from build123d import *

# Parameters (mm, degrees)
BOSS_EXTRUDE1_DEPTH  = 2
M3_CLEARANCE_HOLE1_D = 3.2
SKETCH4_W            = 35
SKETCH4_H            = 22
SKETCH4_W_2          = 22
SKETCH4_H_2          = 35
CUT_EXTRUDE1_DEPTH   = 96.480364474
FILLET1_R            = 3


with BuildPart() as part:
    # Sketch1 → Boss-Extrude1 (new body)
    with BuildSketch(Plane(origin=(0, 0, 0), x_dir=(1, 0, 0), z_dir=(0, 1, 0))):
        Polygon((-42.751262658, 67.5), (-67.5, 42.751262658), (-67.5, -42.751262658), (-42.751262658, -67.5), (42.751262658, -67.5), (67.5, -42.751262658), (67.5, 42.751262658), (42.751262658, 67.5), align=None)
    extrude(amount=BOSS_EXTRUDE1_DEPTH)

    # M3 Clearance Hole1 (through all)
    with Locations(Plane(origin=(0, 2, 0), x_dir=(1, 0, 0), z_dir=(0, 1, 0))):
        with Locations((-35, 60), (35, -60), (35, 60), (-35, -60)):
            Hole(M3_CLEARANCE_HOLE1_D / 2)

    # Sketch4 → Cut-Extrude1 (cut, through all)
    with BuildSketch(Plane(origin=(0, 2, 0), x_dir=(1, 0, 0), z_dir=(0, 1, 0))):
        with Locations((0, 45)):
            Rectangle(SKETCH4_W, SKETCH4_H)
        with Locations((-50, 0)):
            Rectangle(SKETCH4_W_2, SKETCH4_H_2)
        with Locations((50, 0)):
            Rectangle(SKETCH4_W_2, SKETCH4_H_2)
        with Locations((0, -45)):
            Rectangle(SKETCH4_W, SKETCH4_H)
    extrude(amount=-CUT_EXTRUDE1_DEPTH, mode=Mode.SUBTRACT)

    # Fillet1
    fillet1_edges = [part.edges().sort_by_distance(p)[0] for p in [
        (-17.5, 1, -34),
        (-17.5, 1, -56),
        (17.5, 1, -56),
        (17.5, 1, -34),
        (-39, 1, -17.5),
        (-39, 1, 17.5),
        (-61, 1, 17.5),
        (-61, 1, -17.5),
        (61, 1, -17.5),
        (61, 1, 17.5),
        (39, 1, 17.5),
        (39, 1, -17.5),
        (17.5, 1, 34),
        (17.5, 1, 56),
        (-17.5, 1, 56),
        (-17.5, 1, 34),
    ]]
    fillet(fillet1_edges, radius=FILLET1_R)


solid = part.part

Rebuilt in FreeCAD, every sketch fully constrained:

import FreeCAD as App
import Part
import Sketcher
from FreeCAD import Vector
Q = App.Units.Quantity


def edges_at(feature, points):
    """Names of the edges that pass closest to the given points."""
    edges = feature.Shape.Edges
    near = lambda p: min(range(len(edges)), key=lambda i: edges[i].distToShape(Part.Vertex(*p))[0])
    return sorted({f"Edge{near(p) + 1}" for p in points})


def add_polygon(sketch, points):
    """Adds a closed chain of lines whose ends are joined by coincident constraints."""
    first, n = sketch.GeometryCount, len(points)
    for a, b in zip(points, points[1:] + points[:1]):
        sketch.addGeometry(Part.LineSegment(App.Vector(*a, 0), App.Vector(*b, 0)), False)
    for i in range(n):
        sketch.addConstraint(Sketcher.Constraint("Coincident", first + i, 2, first + (i + 1) % n, 1))

doc = App.newDocument("Part")
body = doc.addObject("PartDesign::Body", "Body")

# Sketch on XZ plane
sketch1 = doc.addObject("Sketcher::SketchObject", "Sketch")
body.addObject(sketch1)
sketch1.AttachmentSupport = (doc.XZ_Plane, [""])
sketch1.MapMode = "FlatFace"
add_polygon(sketch1, [(-43, -68), (-68, -43), (-68, 43), (-43, 68), (43, 68), (68, 43), (68, -43), (43, -68)])  # lines 0-7
sketch1.addConstraint([
    Sketcher.Constraint("Vertical", 1),
    Sketcher.Constraint("Horizontal", 3),
    Sketcher.Constraint("Vertical", 5),
    Sketcher.Constraint("Horizontal", 7),
    Sketcher.Constraint("Symmetric", 0, 2, 4, 2, -1, 1),
    Sketcher.Constraint("Symmetric", 2, 2, 6, 2, -1, 1),
    Sketcher.Constraint("Perpendicular", 0, 2),
    Sketcher.Constraint("Perpendicular", 2, 4),
    Sketcher.Constraint("Perpendicular", 4, 6),
    Sketcher.Constraint("Horizontal", 1, 2, 4, 2),
    Sketcher.Constraint("Vertical", 3, 2, 6, 2),
    Sketcher.Constraint("Equal", 7, 1),
    Sketcher.Constraint("Distance", 0, Q("35 mm")),
    Sketcher.Constraint("DistanceX", 1, 2, 4, 2, Q("135 mm")),
])
pad1 = doc.addObject("PartDesign::Pad", "Pad")
body.addObject(pad1)
pad1.Profile = sketch1
pad1.Length = 2
pad1.Reversed = True

# Sketch on XZ plane
sketch2 = doc.addObject("Sketcher::SketchObject", "Sketch001")
body.addObject(sketch2)
sketch2.AttachmentSupport = (doc.XZ_Plane, [""])
sketch2.MapMode = "FlatFace"
sketch2.AttachmentOffset = App.Placement(Vector(0, 0, -2), App.Rotation())
sketch2.addGeometry([
    Part.Circle(Vector(-35, -60, 0), Vector(0, 0, 1), 1.6),
    Part.Circle(Vector(35, 60, 0), Vector(0, 0, 1), 1.6),
    Part.Circle(Vector(35, -60, 0), Vector(0, 0, 1), 1.6),
    Part.Circle(Vector(-35, 60, 0), Vector(0, 0, 1), 1.6),
], False)
sketch2.addConstraint([
    Sketcher.Constraint("Equal", 0, 1),
    Sketcher.Constraint("Equal", 1, 2),
    Sketcher.Constraint("Equal", 2, 3),
    Sketcher.Constraint("Symmetric", 0, 3, 1, 3, -1, 1),
    Sketcher.Constraint("Symmetric", 2, 3, 3, 3, -1, 1),
    Sketcher.Constraint("Symmetric", 0, 3, 2, 3, -2),
    Sketcher.Constraint("Diameter", 0, Q("3.2 mm")),
    Sketcher.Constraint("DistanceX", 0, 3, -1, 1, Q("35 mm")),
    Sketcher.Constraint("DistanceY", 0, 3, -1, 1, Q("60 mm")),
])
doc.recompute()
hole = doc.addObject("PartDesign::Hole", "Hole")
body.addObject(hole)
hole.Profile = sketch2
hole.ThreadType = "None"
hole.Diameter = 3.2
hole.DepthType = "ThroughAll"
hole.Reversed = True

# Sketch on XZ plane
sketch3 = doc.addObject("Sketcher::SketchObject", "Sketch002")
body.addObject(sketch3)
sketch3.AttachmentSupport = (doc.XZ_Plane, [""])
sketch3.MapMode = "FlatFace"
sketch3.AttachmentOffset = App.Placement(Vector(0, 0, -2), App.Rotation())
add_polygon(sketch3, [(-18, -56), (-18, -34), (18, -34), (18, -56)])  # lines 0-3
add_polygon(sketch3, [(-61, -18), (-61, 18), (-39, 18), (-39, -18)])  # lines 4-7
add_polygon(sketch3, [(39, -18), (39, 18), (61, 18), (61, -18)])  # lines 8-11
add_polygon(sketch3, [(-18, 34), (-18, 56), (18, 56), (18, 34)])  # lines 12-15
sketch3.addConstraint([
    Sketcher.Constraint("Vertical", 0),
    Sketcher.Constraint("Horizontal", 1),
    Sketcher.Constraint("Vertical", 2),
    Sketcher.Constraint("Horizontal", 3),
    Sketcher.Constraint("Vertical", 4),
    Sketcher.Constraint("Horizontal", 5),
    Sketcher.Constraint("Vertical", 6),
    Sketcher.Constraint("Horizontal", 7),
    Sketcher.Constraint("Vertical", 8),
    Sketcher.Constraint("Horizontal", 9),
    Sketcher.Constraint("Vertical", 10),
    Sketcher.Constraint("Horizontal", 11),
    Sketcher.Constraint("Vertical", 12),
    Sketcher.Constraint("Horizontal", 13),
    Sketcher.Constraint("Vertical", 14),
    Sketcher.Constraint("Horizontal", 15),
    Sketcher.Constraint("Symmetric", 6, 2, 8, 2, -1, 1),
    Sketcher.Constraint("Symmetric", 4, 2, 10, 2, -1, 1),
    Sketcher.Constraint("Symmetric", 2, 2, 12, 2, -1, 1),
    Sketcher.Constraint("Symmetric", 0, 2, 14, 2, -1, 1),
    Sketcher.Constraint("Horizontal", 5, 2, 8, 2),
    Sketcher.Constraint("Vertical", 3, 2, 12, 2),
    Sketcher.Constraint("Equal", 11, 0),
    Sketcher.Constraint("Equal", 15, 4),
    Sketcher.Constraint("DistanceX", 1, 1, 1, 2, Q("35 mm")),
    Sketcher.Constraint("DistanceX", 5, 1, 5, 2, Q("22 mm")),
    Sketcher.Constraint("DistanceY", 0, 2, -1, 1, Q("34 mm")),
    Sketcher.Constraint("DistanceX", 4, 2, -1, 1, Q("61 mm")),
])
pocket1 = doc.addObject("PartDesign::Pocket", "Pocket")
body.addObject(pocket1)
pocket1.Profile = sketch3
pocket1.Type = "ThroughAll"
pocket1.Reversed = True
doc.recompute()

fillet = doc.addObject("PartDesign::Fillet", "Fillet")
body.addObject(fillet)
fillet.Base = (pocket1, edges_at(pocket1, [
    (-17.5, 1, -34),
    (-17.5, 1, -56),
    (17.5, 1, -56),
    (17.5, 1, -34),
    (-39, 1, -17.5),
    (-39, 1, 17.5),
    (-61, 1, 17.5),
    (-61, 1, -17.5),
    (61, 1, -17.5),
    (61, 1, 17.5),
    (39, 1, 17.5),
    (39, 1, -17.5),
    (17.5, 1, 34),
    (17.5, 1, 56),
    (-17.5, 1, 56),
    (-17.5, 1, 34),
]))
fillet.Radius = 3

doc.recompute()
